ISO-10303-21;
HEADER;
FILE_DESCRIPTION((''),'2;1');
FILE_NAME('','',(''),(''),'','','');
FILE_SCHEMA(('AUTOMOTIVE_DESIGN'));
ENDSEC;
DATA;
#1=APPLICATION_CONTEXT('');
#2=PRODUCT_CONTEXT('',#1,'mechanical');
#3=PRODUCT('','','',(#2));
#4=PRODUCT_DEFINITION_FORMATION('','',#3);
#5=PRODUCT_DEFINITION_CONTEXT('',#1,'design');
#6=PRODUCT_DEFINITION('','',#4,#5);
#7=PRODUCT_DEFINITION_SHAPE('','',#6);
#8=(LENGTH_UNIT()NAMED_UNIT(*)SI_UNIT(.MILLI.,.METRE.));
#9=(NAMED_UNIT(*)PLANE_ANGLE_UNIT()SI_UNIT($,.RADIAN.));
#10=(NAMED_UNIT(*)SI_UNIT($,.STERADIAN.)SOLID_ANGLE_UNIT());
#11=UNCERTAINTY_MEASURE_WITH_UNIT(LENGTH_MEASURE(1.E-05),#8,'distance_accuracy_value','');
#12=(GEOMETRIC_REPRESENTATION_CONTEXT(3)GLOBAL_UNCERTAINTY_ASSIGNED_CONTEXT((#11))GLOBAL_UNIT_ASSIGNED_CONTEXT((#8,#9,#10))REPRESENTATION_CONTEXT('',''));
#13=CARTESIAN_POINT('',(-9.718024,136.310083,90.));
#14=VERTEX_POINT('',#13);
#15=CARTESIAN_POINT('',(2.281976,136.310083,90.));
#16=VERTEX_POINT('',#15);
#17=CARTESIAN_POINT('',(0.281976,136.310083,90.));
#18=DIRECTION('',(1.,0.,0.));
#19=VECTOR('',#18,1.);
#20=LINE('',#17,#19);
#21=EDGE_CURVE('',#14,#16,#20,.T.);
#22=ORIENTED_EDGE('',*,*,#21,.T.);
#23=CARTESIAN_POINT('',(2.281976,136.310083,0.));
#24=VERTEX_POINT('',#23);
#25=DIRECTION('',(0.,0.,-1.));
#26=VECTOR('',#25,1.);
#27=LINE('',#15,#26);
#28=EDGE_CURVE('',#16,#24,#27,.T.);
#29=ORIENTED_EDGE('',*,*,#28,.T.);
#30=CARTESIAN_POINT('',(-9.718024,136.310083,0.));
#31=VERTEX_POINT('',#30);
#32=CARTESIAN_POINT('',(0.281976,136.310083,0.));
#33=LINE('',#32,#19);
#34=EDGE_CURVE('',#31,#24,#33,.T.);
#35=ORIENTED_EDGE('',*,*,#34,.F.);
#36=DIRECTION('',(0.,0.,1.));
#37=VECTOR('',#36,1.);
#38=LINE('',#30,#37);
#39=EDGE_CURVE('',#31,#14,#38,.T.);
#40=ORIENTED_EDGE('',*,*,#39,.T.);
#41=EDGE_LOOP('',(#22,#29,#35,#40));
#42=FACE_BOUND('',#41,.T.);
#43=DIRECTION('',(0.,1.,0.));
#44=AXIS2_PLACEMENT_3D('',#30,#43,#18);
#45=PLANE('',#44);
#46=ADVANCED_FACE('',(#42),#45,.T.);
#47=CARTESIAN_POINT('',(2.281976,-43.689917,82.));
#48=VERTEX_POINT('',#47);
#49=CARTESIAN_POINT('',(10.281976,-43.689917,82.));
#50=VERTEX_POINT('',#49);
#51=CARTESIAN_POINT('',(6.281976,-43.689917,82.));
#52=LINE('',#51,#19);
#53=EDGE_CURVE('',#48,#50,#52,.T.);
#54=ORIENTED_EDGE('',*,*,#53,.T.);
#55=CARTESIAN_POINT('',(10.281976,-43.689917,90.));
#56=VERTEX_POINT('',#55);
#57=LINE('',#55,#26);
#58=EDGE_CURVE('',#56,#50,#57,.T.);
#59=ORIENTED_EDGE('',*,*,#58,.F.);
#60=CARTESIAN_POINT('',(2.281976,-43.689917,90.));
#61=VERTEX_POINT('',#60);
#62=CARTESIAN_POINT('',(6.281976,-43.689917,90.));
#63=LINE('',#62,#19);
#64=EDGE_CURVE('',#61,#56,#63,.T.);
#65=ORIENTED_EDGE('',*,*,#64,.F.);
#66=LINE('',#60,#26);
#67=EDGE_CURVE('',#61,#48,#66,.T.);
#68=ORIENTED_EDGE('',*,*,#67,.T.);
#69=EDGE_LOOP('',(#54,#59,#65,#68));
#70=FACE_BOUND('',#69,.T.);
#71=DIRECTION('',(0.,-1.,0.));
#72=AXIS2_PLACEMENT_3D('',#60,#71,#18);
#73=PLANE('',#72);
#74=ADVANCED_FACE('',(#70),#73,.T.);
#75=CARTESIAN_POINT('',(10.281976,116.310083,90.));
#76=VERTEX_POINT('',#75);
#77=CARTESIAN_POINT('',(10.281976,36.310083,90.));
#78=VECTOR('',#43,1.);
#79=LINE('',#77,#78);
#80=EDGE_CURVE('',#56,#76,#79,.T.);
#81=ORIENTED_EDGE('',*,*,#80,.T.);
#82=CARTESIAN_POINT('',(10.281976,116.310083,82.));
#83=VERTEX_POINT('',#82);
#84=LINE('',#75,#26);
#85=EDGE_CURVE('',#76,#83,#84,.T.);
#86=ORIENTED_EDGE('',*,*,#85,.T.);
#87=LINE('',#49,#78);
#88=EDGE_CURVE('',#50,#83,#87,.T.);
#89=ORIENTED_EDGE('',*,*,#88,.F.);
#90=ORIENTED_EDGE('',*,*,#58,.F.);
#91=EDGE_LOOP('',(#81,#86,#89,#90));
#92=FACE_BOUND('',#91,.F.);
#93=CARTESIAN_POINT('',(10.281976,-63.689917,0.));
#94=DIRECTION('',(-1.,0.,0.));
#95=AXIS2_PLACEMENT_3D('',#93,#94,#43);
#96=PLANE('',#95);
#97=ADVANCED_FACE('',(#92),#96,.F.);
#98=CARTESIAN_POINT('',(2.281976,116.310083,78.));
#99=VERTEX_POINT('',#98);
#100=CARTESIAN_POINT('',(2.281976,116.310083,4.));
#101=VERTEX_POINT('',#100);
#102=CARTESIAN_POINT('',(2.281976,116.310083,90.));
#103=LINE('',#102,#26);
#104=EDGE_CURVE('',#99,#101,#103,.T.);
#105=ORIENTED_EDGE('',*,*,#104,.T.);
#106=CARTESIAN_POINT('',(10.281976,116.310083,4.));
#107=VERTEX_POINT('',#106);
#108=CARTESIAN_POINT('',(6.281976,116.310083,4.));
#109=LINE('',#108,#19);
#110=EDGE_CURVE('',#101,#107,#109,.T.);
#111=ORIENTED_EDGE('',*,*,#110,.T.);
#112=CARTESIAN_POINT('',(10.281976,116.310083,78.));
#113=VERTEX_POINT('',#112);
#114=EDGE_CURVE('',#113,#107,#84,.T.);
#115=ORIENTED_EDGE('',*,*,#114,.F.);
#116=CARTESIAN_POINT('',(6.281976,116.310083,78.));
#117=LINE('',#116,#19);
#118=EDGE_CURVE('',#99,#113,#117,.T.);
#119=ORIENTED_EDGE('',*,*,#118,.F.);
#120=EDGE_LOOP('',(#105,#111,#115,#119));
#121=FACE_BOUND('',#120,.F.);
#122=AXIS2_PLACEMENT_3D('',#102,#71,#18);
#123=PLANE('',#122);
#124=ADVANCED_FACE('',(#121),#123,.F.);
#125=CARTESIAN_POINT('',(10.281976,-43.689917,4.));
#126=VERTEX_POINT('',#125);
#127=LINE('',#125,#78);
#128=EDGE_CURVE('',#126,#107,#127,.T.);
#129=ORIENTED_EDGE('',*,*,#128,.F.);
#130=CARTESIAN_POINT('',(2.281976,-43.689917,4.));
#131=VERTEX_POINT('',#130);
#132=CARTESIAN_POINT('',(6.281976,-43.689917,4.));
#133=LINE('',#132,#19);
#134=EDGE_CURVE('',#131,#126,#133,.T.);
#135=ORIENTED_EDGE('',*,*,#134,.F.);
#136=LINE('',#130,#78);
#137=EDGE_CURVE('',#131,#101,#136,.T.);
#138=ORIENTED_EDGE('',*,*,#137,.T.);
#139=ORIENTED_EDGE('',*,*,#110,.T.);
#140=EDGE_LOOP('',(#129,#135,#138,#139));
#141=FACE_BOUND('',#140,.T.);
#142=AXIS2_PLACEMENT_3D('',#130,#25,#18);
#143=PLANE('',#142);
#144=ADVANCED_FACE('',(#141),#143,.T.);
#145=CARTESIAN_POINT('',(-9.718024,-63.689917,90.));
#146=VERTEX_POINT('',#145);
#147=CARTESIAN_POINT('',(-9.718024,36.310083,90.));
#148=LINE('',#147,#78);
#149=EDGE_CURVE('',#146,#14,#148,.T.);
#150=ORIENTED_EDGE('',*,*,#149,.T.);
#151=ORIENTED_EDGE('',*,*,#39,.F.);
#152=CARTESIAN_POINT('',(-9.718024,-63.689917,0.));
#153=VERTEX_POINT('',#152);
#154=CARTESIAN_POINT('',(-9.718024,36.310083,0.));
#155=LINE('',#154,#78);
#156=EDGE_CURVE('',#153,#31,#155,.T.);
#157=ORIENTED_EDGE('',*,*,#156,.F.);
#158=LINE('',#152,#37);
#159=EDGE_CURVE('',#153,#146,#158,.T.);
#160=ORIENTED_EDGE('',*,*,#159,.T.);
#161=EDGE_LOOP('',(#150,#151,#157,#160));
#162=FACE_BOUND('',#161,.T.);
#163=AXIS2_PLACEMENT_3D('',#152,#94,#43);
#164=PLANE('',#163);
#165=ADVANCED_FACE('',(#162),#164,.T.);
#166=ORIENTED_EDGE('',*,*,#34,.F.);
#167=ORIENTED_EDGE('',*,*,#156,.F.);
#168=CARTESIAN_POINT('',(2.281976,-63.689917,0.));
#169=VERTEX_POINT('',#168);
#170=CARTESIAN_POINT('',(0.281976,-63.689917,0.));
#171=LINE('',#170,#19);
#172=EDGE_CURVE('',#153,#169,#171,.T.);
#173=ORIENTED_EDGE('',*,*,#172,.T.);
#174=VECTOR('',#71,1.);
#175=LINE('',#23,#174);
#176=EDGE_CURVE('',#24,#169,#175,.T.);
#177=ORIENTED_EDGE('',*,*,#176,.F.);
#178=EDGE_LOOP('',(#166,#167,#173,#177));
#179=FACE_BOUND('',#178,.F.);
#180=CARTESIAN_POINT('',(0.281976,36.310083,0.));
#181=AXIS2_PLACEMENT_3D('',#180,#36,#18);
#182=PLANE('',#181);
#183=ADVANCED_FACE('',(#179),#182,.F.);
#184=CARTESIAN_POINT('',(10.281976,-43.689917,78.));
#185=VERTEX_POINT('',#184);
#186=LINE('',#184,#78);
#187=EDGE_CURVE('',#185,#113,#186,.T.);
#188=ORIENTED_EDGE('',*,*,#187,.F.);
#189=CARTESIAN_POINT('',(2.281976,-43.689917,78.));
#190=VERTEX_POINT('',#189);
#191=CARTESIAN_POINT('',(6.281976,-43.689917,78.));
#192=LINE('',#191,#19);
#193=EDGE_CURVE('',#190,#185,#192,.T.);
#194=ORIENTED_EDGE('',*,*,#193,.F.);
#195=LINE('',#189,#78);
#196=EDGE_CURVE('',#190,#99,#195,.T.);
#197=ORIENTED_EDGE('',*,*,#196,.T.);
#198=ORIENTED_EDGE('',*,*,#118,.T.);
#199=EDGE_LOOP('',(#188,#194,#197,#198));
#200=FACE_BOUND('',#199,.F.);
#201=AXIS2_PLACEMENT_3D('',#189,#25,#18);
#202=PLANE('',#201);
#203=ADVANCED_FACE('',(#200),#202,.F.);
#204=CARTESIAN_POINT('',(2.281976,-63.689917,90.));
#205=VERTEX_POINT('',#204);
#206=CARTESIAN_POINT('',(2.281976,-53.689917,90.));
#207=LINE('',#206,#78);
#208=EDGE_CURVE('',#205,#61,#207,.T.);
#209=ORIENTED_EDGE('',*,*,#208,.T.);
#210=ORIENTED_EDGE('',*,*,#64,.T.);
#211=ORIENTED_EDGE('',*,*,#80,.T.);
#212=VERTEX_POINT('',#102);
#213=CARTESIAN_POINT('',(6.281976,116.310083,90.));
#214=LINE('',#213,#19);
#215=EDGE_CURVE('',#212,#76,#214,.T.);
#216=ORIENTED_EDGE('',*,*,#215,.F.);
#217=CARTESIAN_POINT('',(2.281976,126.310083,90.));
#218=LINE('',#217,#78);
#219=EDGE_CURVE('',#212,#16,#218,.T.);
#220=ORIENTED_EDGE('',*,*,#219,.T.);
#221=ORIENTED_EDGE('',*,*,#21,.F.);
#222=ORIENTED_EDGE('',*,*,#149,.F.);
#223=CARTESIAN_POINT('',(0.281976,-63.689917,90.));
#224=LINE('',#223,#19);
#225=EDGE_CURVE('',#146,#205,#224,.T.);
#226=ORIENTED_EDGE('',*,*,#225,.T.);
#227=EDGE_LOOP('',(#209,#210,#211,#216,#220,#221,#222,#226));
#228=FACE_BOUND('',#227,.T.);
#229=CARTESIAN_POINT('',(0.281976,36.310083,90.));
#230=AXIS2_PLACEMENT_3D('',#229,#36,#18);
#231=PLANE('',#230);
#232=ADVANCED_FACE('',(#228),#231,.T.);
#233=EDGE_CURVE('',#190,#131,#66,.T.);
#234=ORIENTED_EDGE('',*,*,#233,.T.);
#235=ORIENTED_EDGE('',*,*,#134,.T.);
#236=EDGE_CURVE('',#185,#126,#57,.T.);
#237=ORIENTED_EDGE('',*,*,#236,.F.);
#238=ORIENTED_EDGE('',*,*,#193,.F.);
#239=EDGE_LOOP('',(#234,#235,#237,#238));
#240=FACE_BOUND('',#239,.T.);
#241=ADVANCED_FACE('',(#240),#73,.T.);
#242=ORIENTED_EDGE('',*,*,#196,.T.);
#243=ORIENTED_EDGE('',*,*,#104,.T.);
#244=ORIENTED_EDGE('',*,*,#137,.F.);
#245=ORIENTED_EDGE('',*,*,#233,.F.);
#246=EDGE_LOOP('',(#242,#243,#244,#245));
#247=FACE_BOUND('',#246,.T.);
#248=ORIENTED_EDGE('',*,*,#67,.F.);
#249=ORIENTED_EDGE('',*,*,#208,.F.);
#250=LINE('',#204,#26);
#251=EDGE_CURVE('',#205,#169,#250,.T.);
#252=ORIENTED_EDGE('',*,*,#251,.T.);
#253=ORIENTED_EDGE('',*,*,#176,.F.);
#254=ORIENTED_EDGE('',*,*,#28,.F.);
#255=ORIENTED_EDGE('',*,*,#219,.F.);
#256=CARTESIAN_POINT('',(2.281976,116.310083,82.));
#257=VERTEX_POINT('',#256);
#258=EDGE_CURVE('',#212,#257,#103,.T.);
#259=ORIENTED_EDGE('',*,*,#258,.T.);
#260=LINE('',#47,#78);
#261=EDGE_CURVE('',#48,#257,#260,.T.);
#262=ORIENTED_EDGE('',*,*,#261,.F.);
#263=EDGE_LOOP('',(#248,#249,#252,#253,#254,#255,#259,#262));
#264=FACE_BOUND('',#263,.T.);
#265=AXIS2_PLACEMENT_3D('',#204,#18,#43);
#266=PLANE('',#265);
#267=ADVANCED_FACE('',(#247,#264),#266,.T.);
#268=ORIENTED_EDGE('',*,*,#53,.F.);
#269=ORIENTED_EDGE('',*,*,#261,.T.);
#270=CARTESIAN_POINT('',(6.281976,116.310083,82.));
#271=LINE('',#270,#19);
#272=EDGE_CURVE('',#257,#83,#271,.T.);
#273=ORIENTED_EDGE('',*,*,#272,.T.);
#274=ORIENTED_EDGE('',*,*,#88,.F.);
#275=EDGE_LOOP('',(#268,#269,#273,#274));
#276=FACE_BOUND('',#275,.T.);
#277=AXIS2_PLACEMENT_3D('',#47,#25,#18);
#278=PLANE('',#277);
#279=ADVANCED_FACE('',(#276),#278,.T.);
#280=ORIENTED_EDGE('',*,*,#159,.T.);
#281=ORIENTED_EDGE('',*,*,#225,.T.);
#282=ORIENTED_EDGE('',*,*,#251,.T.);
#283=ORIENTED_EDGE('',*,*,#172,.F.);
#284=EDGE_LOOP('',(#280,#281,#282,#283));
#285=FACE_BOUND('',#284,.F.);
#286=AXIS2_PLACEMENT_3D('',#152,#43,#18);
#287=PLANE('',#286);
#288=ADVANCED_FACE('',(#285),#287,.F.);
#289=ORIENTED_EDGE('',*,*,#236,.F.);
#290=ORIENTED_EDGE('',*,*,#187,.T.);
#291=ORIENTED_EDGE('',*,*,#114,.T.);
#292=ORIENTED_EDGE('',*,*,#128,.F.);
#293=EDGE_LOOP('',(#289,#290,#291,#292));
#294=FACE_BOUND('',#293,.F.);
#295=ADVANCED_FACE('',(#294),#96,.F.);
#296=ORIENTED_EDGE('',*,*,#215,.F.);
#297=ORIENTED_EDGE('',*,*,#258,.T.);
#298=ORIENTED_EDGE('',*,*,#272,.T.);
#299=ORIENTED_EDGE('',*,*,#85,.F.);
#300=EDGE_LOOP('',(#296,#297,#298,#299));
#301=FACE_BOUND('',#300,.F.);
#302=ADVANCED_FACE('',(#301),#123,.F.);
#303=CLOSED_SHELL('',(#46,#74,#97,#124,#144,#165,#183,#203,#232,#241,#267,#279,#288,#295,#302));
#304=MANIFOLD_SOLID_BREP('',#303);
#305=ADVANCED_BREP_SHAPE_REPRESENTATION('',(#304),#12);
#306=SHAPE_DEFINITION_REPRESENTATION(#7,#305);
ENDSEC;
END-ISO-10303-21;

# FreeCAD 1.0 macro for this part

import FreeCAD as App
import Part
import Sketcher
from FreeCAD import Vector


def add_polygon(sketch, points):
    """Adds a closed chain of lines whose ends are joined by coincident constraints."""
    first, n = sketch.GeometryCount, len(points)
    for a, b in zip(points, points[1:] + points[:1]):
        sketch.addGeometry(Part.LineSegment(App.Vector(*a, 0), App.Vector(*b, 0)), False)
    for i in range(n):
        sketch.addConstraint(Sketcher.Constraint("Coincident", first + i, 2, first + (i + 1) % n, 1))

doc = App.newDocument("Part")
body = doc.addObject("PartDesign::Body", "Body")

sketch1 = body.newObject("Sketcher::SketchObject", "Sketch")
sketch1.AttachmentSupport = (doc.getObject("XY_Plane"), [""])
sketch1.MapMode = "FlatFace"
add_polygon(sketch1, [(-10, 136), (-10, -64), (10, -64), (10, 136)])
sketch1.addConstraint(Sketcher.Constraint("Vertical", 0))
sketch1.addConstraint(Sketcher.Constraint("Horizontal", 1))
sketch1.addConstraint(Sketcher.Constraint("Vertical", 2))
sketch1.addConstraint(Sketcher.Constraint("Horizontal", 3))
sketch1.addConstraint(Sketcher.Constraint("DistanceX", 1, 1, 1, 2, 20.0))
sketch1.addConstraint(Sketcher.Constraint("DistanceY", 0, 2, 0, 1, 200.0))
sketch1.addConstraint(Sketcher.Constraint("DistanceX", 0, 2, -1, 1, 9.718024))
sketch1.addConstraint(Sketcher.Constraint("DistanceY", 0, 2, -1, 1, 63.689917))
pad1 = body.newObject("PartDesign::Pad", "Pad")
pad1.Profile = sketch1
pad1.Length = 90

sketch2 = body.newObject("Sketcher::SketchObject", "Sketch001")
sketch2.AttachmentSupport = (doc.getObject("XY_Plane"), [""])
sketch2.MapMode = "FlatFace"
sketch2.AttachmentOffset = App.Placement(Vector(0, 0, 90), App.Rotation())
add_polygon(sketch2, [(2, 136), (2, 116), (10, 116), (10, 136)])
add_polygon(sketch2, [(2, -44), (2, -64), (10, -64), (10, -44)])
sketch2.addConstraint(Sketcher.Constraint("Vertical", 0))
sketch2.addConstraint(Sketcher.Constraint("Horizontal", 1))
sketch2.addConstraint(Sketcher.Constraint("Vertical", 2))
sketch2.addConstraint(Sketcher.Constraint("Horizontal", 3))
sketch2.addConstraint(Sketcher.Constraint("Vertical", 4))
sketch2.addConstraint(Sketcher.Constraint("Horizontal", 5))
sketch2.addConstraint(Sketcher.Constraint("Vertical", 6))
sketch2.addConstraint(Sketcher.Constraint("Horizontal", 7))
sketch2.addConstraint(Sketcher.Constraint("Vertical", 3, 2, 4, 2))
sketch2.addConstraint(Sketcher.Constraint("Vertical", 2, 2, 5, 2))
sketch2.addConstraint(Sketcher.Constraint("Equal", 2, 4))
sketch2.addConstraint(Sketcher.Constraint("DistanceX", 1, 1, 1, 2, 8.0))
sketch2.addConstraint(Sketcher.Constraint("DistanceY", 0, 2, 0, 1, 20.0))
sketch2.addConstraint(Sketcher.Constraint("DistanceY", 4, 2, 0, 2, 180.0))
sketch2.addConstraint(Sketcher.Constraint("DistanceX", -1, 1, 0, 2, 2.281976))
sketch2.addConstraint(Sketcher.Constraint("DistanceY", -1, 1, 0, 2, 116.310083))
pocket1 = body.newObject("PartDesign::Pocket", "Pocket")
pocket1.Profile = sketch2
pocket1.Type = "ThroughAll"

sketch3 = body.newObject("Sketcher::SketchObject", "Sketch002")
sketch3.AttachmentSupport = (doc.getObject("XZ_Plane"), [""])
sketch3.MapMode = "FlatFace"
sketch3.AttachmentOffset = App.Placement(Vector(0, 0, 43.689917), App.Rotation())
add_polygon(sketch3, [(2.3, 82), (2.3, 78), (10.3, 78), (10.3, 82)])
add_polygon(sketch3, [(2.3, 4), (2.3, 0), (10.3, 0), (10.3, 4)])
sketch3.addConstraint(Sketcher.Constraint("Vertical", 0))
sketch3.addConstraint(Sketcher.Constraint("Horizontal", 1))
sketch3.addConstraint(Sketcher.Constraint("Vertical", 2))
sketch3.addConstraint(Sketcher.Constraint("Horizontal", 3))
sketch3.addConstraint(Sketcher.Constraint("Vertical", 4))
sketch3.addConstraint(Sketcher.Constraint("Horizontal", 5))
sketch3.addConstraint(Sketcher.Constraint("Vertical", 6))
sketch3.addConstraint(Sketcher.Constraint("Horizontal", 7))
sketch3.addConstraint(Sketcher.Constraint("PointOnObject", 4, 2, -1))
sketch3.addConstraint(Sketcher.Constraint("Vertical", 3, 2, 4, 2))
sketch3.addConstraint(Sketcher.Constraint("Vertical", 2, 2, 5, 2))
sketch3.addConstraint(Sketcher.Constraint("Equal", 2, 4))
sketch3.addConstraint(Sketcher.Constraint("DistanceX", 1, 1, 1, 2, 8.0))
sketch3.addConstraint(Sketcher.Constraint("DistanceY", 0, 2, 0, 1, 4.0))
sketch3.addConstraint(Sketcher.Constraint("DistanceY", -1, 1, 0, 2, 78.0))
sketch3.addConstraint(Sketcher.Constraint("DistanceX", -1, 1, 0, 2, 2.281976))
pocket2 = body.newObject("PartDesign::Pocket", "Pocket001")
pocket2.Profile = sketch3
pocket2.Type = "ThroughAll"

doc.recompute()
